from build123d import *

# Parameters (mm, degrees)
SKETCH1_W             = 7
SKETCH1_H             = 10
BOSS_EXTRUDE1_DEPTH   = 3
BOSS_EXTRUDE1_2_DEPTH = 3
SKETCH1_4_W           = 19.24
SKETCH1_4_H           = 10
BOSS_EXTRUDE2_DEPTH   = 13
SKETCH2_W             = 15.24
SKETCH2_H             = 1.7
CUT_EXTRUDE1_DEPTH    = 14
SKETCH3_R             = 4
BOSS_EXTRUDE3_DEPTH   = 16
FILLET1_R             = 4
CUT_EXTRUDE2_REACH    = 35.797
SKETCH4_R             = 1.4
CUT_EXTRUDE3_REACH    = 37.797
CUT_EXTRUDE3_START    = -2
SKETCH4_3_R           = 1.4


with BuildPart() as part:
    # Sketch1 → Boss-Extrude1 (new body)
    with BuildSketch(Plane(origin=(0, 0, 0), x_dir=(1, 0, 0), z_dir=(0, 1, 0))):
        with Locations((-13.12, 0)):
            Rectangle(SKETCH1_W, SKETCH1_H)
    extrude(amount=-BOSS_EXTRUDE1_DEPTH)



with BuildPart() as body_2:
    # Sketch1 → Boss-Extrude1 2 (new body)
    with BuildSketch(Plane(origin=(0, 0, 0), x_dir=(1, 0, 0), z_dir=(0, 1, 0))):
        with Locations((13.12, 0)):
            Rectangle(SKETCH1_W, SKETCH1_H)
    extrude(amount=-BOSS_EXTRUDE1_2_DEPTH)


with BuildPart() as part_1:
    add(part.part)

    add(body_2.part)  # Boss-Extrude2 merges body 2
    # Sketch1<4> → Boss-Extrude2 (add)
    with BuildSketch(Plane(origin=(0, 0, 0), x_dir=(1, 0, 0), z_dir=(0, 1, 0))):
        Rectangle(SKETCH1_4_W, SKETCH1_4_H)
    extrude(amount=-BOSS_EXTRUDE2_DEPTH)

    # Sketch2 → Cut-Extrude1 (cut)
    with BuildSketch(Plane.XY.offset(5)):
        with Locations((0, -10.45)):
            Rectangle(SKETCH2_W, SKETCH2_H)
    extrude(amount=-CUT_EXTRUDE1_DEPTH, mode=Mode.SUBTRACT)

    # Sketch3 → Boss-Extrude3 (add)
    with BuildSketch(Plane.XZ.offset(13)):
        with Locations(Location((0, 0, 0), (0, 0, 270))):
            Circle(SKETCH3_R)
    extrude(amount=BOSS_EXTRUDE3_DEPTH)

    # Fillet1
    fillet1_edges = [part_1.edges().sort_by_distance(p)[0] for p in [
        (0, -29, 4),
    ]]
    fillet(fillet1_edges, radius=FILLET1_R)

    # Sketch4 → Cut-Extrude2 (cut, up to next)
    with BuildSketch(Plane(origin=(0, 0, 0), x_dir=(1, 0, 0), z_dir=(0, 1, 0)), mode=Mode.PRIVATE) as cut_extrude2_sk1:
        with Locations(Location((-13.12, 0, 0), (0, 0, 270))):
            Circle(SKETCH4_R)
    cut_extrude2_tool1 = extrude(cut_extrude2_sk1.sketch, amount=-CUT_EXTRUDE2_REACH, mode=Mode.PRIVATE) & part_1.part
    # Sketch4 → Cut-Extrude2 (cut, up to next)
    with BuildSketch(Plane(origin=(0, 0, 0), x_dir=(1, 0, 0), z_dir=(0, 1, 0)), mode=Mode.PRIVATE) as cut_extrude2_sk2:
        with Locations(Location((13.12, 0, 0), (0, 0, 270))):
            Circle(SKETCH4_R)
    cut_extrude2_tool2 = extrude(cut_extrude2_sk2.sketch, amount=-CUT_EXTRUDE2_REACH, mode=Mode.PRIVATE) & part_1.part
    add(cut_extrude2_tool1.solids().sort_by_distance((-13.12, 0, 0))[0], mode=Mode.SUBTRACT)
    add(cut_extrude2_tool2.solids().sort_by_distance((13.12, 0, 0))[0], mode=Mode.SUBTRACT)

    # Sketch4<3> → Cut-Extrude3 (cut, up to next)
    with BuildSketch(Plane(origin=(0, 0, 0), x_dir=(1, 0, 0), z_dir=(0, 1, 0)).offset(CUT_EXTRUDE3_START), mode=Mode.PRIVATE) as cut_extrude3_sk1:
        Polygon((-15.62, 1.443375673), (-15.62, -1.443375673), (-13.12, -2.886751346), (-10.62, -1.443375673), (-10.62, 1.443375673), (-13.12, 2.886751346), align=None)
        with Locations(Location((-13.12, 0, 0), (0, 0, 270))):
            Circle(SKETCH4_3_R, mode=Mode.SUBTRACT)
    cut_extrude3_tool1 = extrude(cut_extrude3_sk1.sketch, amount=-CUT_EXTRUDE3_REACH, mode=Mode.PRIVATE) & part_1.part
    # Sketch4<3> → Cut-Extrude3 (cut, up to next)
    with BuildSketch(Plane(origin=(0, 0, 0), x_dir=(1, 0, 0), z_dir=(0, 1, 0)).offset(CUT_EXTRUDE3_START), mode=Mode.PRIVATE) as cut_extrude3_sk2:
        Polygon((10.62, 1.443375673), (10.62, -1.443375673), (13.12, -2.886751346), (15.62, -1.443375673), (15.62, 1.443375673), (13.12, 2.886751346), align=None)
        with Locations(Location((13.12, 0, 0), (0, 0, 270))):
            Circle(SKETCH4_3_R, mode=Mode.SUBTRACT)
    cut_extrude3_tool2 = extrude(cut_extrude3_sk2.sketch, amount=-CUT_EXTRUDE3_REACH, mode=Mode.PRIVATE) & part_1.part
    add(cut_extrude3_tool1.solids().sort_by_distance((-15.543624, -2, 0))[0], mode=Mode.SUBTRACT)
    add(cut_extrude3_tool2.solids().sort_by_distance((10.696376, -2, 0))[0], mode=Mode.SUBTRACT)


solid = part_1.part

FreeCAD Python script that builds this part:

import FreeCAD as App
import Part
import Sketcher

V = App.Vector
Q = App.Units.Quantity


def edges_at(feature, points):
    """Names of the edges that pass closest to the given points."""
    edges = feature.Shape.Edges
    near = lambda p: min(range(len(edges)), key=lambda i: edges[i].distToShape(Part.Vertex(*p))[0])
    return sorted({f"Edge{near(p) + 1}" for p in points})

doc = App.newDocument("Part")
body = doc.addObject("PartDesign::Body", "Body")

# Sketch on XZ plane
sketch1 = body.newObject("Sketcher::SketchObject", "Sketch")
sketch1.AttachmentSupport = (doc.getObject("XZ_Plane"), [""])
sketch1.MapMode = "FlatFace"
sketch1.addGeometry([
    Part.LineSegment(V(-17, -5, 0), V(-17, 5, 0)),
    Part.LineSegment(V(-17, 5, 0), V(-10, 5, 0)),
    Part.LineSegment(V(-10, 5, 0), V(-10, -5, 0)),
    Part.LineSegment(V(-10, -5, 0), V(-17, -5, 0)),
], False)
sketch1.addConstraint([
    Sketcher.Constraint("Coincident", 0, 2, 1, 1),
    Sketcher.Constraint("Coincident", 1, 2, 2, 1),
    Sketcher.Constraint("Coincident", 2, 2, 3, 1),
    Sketcher.Constraint("Coincident", 3, 2, 0, 1),
    Sketcher.Constraint("Vertical", 0),
    Sketcher.Constraint("Horizontal", 1),
    Sketcher.Constraint("Vertical", 2),
    Sketcher.Constraint("Horizontal", 3),
    Sketcher.Constraint("DistanceX", 1, 1, 1, 2, 7.0),
    Sketcher.Constraint("DistanceY", 0, 1, 0, 2, 10.0),
    Sketcher.Constraint("DistanceY", -1, 1, 0, 2, 5.0),
    Sketcher.Constraint("DistanceX", 0, 2, -1, 1, 16.62),
])
pad1 = body.newObject("PartDesign::Pad", "Pad")
pad1.Profile = sketch1
pad1.Length = 3
body2 = doc.addObject("PartDesign::Body", "Body001")

# Sketch on XZ plane
sketch2 = body2.newObject("Sketcher::SketchObject", "Sketch001")
sketch2.AttachmentSupport = (doc.getObject("XZ_Plane001"), [""])
sketch2.MapMode = "FlatFace"
sketch2.addGeometry([
    Part.LineSegment(V(10, -5, 0), V(10, 5, 0)),
    Part.LineSegment(V(10, 5, 0), V(17, 5, 0)),
    Part.LineSegment(V(17, 5, 0), V(17, -5, 0)),
    Part.LineSegment(V(17, -5, 0), V(10, -5, 0)),
], False)
sketch2.addConstraint([
    Sketcher.Constraint("Coincident", 0, 2, 1, 1),
    Sketcher.Constraint("Coincident", 1, 2, 2, 1),
    Sketcher.Constraint("Coincident", 2, 2, 3, 1),
    Sketcher.Constraint("Coincident", 3, 2, 0, 1),
    Sketcher.Constraint("Vertical", 0),
    Sketcher.Constraint("Horizontal", 1),
    Sketcher.Constraint("Vertical", 2),
    Sketcher.Constraint("Horizontal", 3),
    Sketcher.Constraint("DistanceX", 1, 1, 1, 2, 7.0),
    Sketcher.Constraint("DistanceY", 0, 1, 0, 2, 10.0),
    Sketcher.Constraint("DistanceY", -1, 1, 0, 2, 5.0),
    Sketcher.Constraint("DistanceX", -1, 1, 0, 2, 9.62),
])
pad2 = body2.newObject("PartDesign::Pad", "Pad001")
pad2.Profile = sketch2
pad2.Length = 3
body.AllowCompound = True
doc.recompute()

boolean = body.newObject("PartDesign::Boolean", "Boolean")
boolean.Type = "Fuse"
boolean.addObjects([body2])

# Sketch on XZ plane
sketch3 = body.newObject("Sketcher::SketchObject", "Sketch002")
sketch3.AttachmentSupport = (doc.getObject("XZ_Plane"), [""])
sketch3.MapMode = "FlatFace"
sketch3.addGeometry([
    Part.LineSegment(V(-10, -5, 0), V(-10, 5, 0)),
    Part.LineSegment(V(-10, 5, 0), V(10, 5, 0)),
    Part.LineSegment(V(10, 5, 0), V(10, -5, 0)),
    Part.LineSegment(V(10, -5, 0), V(-10, -5, 0)),
], False)
sketch3.addConstraint([
    Sketcher.Constraint("Coincident", 0, 2, 1, 1),
    Sketcher.Constraint("Coincident", 1, 2, 2, 1),
    Sketcher.Constraint("Coincident", 2, 2, 3, 1),
    Sketcher.Constraint("Coincident", 3, 2, 0, 1),
    Sketcher.Constraint("Vertical", 0),
    Sketcher.Constraint("Horizontal", 1),
    Sketcher.Constraint("Vertical", 2),
    Sketcher.Constraint("Horizontal", 3),
    Sketcher.Constraint("Symmetric", 0, 2, 2, 2, -1, 1),
    Sketcher.Constraint("DistanceY", 0, 1, 0, 2, 10.0),
    Sketcher.Constraint("DistanceX", 1, 1, 1, 2, 19.24),
])
pad3 = body.newObject("PartDesign::Pad", "Pad002")
pad3.Profile = sketch3
pad3.Length = 13

# Sketch on XY plane
sketch4 = body.newObject("Sketcher::SketchObject", "Sketch003")
sketch4.AttachmentSupport = (doc.getObject("XY_Plane"), [""])
sketch4.MapMode = "FlatFace"
sketch4.AttachmentOffset = App.Placement(V(0, 0, 5), App.Rotation())
sketch4.addGeometry([
    Part.LineSegment(V(-7.6, -9.6, 0), V(-7.6, -11.3, 0)),
    Part.LineSegment(V(-7.6, -11.3, 0), V(7.6, -11.3, 0)),
    Part.LineSegment(V(7.6, -11.3, 0), V(7.6, -9.6, 0)),
    Part.LineSegment(V(7.6, -9.6, 0), V(-7.6, -9.6, 0)),
], False)
sketch4.addConstraint([
    Sketcher.Constraint("Coincident", 0, 2, 1, 1),
    Sketcher.Constraint("Coincident", 1, 2, 2, 1),
    Sketcher.Constraint("Coincident", 2, 2, 3, 1),
    Sketcher.Constraint("Coincident", 3, 2, 0, 1),
    Sketcher.Constraint("Vertical", 0),
    Sketcher.Constraint("Horizontal", 1),
    Sketcher.Constraint("Vertical", 2),
    Sketcher.Constraint("Horizontal", 3),
    Sketcher.Constraint("DistanceY", 0, 2, 0, 1, 1.7),
    Sketcher.Constraint("DistanceX", 1, 1, 1, 2, 15.24),
    Sketcher.Constraint("DistanceY", 0, 2, -1, 1, 11.3),
    Sketcher.Constraint("DistanceX", 0, 2, -1, 1, 7.62),
])
pocket1 = body.newObject("PartDesign::Pocket", "Pocket")
pocket1.Profile = sketch4
pocket1.Length = 14

# Sketch on XZ plane
sketch5 = body.newObject("Sketcher::SketchObject", "Sketch004")
sketch5.AttachmentSupport = (doc.getObject("XZ_Plane"), [""])
sketch5.MapMode = "FlatFace"
sketch5.AttachmentOffset = App.Placement(V(0, 0, 13), App.Rotation())
sketch5.addGeometry(Part.Circle(V(0, 0, 0), V(0, 0, 1), 4), False)
sketch5.addConstraint([
    Sketcher.Constraint("Coincident", 0, 3, -1, 1),
    Sketcher.Constraint("Diameter", 0, 8.0),
])
pad4 = body.newObject("PartDesign::Pad", "Pad003")
pad4.Profile = sketch5
pad4.Length = 16
doc.recompute()

fillet = body.newObject("PartDesign::Fillet", "Fillet")
fillet.Base = (pad4, edges_at(pad4, [(0, -29, 4)]))
fillet.Radius = 4

# Sketch on XZ plane
sketch6 = body.newObject("Sketcher::SketchObject", "Sketch005")
sketch6.AttachmentSupport = (doc.getObject("XZ_Plane"), [""])
sketch6.MapMode = "FlatFace"
sketch6.addGeometry(Part.Circle(V(-13.1, 0, 0), V(0, 0, 1), 1.4), False)
sketch6.addConstraint([
    Sketcher.Constraint("PointOnObject", 0, 3, -1),
    Sketcher.Constraint("Diameter", 0, 2.8),
    Sketcher.Constraint("DistanceX", 0, 3, -1, 1, 13.12),
])
pocket2 = body.newObject("PartDesign::Pocket", "Pocket001")
pocket2.Profile = sketch6
pocket2.Type = "UpToFirst"
pocket2.Reversed = True

# Sketch on XZ plane
sketch7 = body.newObject("Sketcher::SketchObject", "Sketch006")
sketch7.AttachmentSupport = (doc.getObject("XZ_Plane"), [""])
sketch7.MapMode = "FlatFace"
sketch7.addGeometry(Part.Circle(V(13.1, 0, 0), V(0, 0, 1), 1.4), False)
sketch7.addConstraint([
    Sketcher.Constraint("PointOnObject", 0, 3, -1),
    Sketcher.Constraint("Diameter", 0, 2.8),
    Sketcher.Constraint("DistanceX", -1, 1, 0, 3, 13.12),
])
pocket3 = body.newObject("PartDesign::Pocket", "Pocket002")
pocket3.Profile = sketch7
pocket3.Type = "UpToFirst"
pocket3.Reversed = True

# Sketch on XZ plane
sketch8 = body.newObject("Sketcher::SketchObject", "Sketch007")
sketch8.AttachmentSupport = (doc.getObject("XZ_Plane"), [""])
sketch8.MapMode = "FlatFace"
sketch8.AttachmentOffset = App.Placement(V(0, 0, 2), App.Rotation())
sketch8.addGeometry([
    Part.LineSegment(V(-15.6, -1.4, 0), V(-15.6, 1.4, 0)),  # 0
    Part.LineSegment(V(-15.6, 1.4, 0), V(-13.1, 2.9, 0)),  # 1
    Part.LineSegment(V(-13.1, 2.9, 0), V(-10.6, 1.4, 0)),  # 2
    Part.LineSegment(V(-10.6, 1.4, 0), V(-10.6, -1.4, 0)),  # 3
    Part.LineSegment(V(-10.6, -1.4, 0), V(-13.1, -2.9, 0)),  # 4
    Part.LineSegment(V(-13.1, -2.9, 0), V(-15.6, -1.4, 0)),  # 5
    Part.Circle(V(-13.1, 0, 0), V(0, 0, 1), 1.4),  # 6
], False)
sketch8.addConstraint([
    Sketcher.Constraint("Coincident", 0, 2, 1, 1),
    Sketcher.Constraint("Coincident", 1, 2, 2, 1),
    Sketcher.Constraint("Coincident", 2, 2, 3, 1),
    Sketcher.Constraint("Coincident", 3, 2, 4, 1),
    Sketcher.Constraint("Coincident", 4, 2, 5, 1),
    Sketcher.Constraint("Coincident", 5, 2, 0, 1),
    Sketcher.Constraint("Vertical", 0),
    Sketcher.Constraint("Vertical", 3),
    Sketcher.Constraint("Symmetric", 1, 2, 4, 2, -1),
    Sketcher.Constraint("PointOnObject", 6, 3, -1),
    Sketcher.Constraint("Parallel", 1, 4),
    Sketcher.Constraint("Parallel", 2, 5),
    Sketcher.Constraint("Horizontal", 0, 2, 2, 2),
    Sketcher.Constraint("Horizontal", 3, 2, 5, 2),
    Sketcher.Constraint("Vertical", 6, 3, 1, 2),
    Sketcher.Constraint("Diameter", 6, 2.8),
    Sketcher.Constraint("Angle", 1, Q("30 deg")),
    Sketcher.Constraint("DistanceX", 0, 2, 2, 2, 5.0),
    Sketcher.Constraint("DistanceX", 6, 3, -1, 1, 13.12),
    Sketcher.Constraint("DistanceY", 0, 1, 0, 2, 2.886751),
])
pocket4 = body.newObject("PartDesign::Pocket", "Pocket003")
pocket4.Profile = sketch8
pocket4.Length = 1
pocket4.Reversed = True

# Sketch on XZ plane
sketch9 = body.newObject("Sketcher::SketchObject", "Sketch008")
sketch9.AttachmentSupport = (doc.getObject("XZ_Plane"), [""])
sketch9.MapMode = "FlatFace"
sketch9.AttachmentOffset = App.Placement(V(0, 0, 2), App.Rotation())
sketch9.addGeometry([
    Part.LineSegment(V(10.6, -1.4, 0), V(10.6, 1.4, 0)),  # 0
    Part.LineSegment(V(10.6, 1.4, 0), V(13.1, 2.9, 0)),  # 1
    Part.LineSegment(V(13.1, 2.9, 0), V(15.6, 1.4, 0)),  # 2
    Part.LineSegment(V(15.6, 1.4, 0), V(15.6, -1.4, 0)),  # 3
    Part.LineSegment(V(15.6, -1.4, 0), V(13.1, -2.9, 0)),  # 4
    Part.LineSegment(V(13.1, -2.9, 0), V(10.6, -1.4, 0)),  # 5
    Part.Circle(V(13.1, 0, 0), V(0, 0, 1), 1.4),  # 6
], False)
sketch9.addConstraint([
    Sketcher.Constraint("Coincident", 0, 2, 1, 1),
    Sketcher.Constraint("Coincident", 1, 2, 2, 1),
    Sketcher.Constraint("Coincident", 2, 2, 3, 1),
    Sketcher.Constraint("Coincident", 3, 2, 4, 1),
    Sketcher.Constraint("Coincident", 4, 2, 5, 1),
    Sketcher.Constraint("Coincident", 5, 2, 0, 1),
    Sketcher.Constraint("Vertical", 0),
    Sketcher.Constraint("Vertical", 3),
    Sketcher.Constraint("Symmetric", 1, 2, 4, 2, -1),
    Sketcher.Constraint("PointOnObject", 6, 3, -1),
    Sketcher.Constraint("Parallel", 1, 4),
    Sketcher.Constraint("Parallel", 2, 5),
    Sketcher.Constraint("Horizontal", 0, 2, 2, 2),
    Sketcher.Constraint("Horizontal", 3, 2, 5, 2),
    Sketcher.Constraint("Vertical", 6, 3, 1, 2),
    Sketcher.Constraint("Diameter", 6, 2.8),
    Sketcher.Constraint("Angle", 1, Q("30 deg")),
    Sketcher.Constraint("DistanceX", 0, 2, 2, 2, 5.0),
    Sketcher.Constraint("DistanceX", -1, 1, 6, 3, 13.12),
    Sketcher.Constraint("DistanceY", 0, 1, 0, 2, 2.886751),
])
pocket5 = body.newObject("PartDesign::Pocket", "Pocket004")
pocket5.Profile = sketch9
pocket5.Length = 1
pocket5.Reversed = True

doc.recompute()
